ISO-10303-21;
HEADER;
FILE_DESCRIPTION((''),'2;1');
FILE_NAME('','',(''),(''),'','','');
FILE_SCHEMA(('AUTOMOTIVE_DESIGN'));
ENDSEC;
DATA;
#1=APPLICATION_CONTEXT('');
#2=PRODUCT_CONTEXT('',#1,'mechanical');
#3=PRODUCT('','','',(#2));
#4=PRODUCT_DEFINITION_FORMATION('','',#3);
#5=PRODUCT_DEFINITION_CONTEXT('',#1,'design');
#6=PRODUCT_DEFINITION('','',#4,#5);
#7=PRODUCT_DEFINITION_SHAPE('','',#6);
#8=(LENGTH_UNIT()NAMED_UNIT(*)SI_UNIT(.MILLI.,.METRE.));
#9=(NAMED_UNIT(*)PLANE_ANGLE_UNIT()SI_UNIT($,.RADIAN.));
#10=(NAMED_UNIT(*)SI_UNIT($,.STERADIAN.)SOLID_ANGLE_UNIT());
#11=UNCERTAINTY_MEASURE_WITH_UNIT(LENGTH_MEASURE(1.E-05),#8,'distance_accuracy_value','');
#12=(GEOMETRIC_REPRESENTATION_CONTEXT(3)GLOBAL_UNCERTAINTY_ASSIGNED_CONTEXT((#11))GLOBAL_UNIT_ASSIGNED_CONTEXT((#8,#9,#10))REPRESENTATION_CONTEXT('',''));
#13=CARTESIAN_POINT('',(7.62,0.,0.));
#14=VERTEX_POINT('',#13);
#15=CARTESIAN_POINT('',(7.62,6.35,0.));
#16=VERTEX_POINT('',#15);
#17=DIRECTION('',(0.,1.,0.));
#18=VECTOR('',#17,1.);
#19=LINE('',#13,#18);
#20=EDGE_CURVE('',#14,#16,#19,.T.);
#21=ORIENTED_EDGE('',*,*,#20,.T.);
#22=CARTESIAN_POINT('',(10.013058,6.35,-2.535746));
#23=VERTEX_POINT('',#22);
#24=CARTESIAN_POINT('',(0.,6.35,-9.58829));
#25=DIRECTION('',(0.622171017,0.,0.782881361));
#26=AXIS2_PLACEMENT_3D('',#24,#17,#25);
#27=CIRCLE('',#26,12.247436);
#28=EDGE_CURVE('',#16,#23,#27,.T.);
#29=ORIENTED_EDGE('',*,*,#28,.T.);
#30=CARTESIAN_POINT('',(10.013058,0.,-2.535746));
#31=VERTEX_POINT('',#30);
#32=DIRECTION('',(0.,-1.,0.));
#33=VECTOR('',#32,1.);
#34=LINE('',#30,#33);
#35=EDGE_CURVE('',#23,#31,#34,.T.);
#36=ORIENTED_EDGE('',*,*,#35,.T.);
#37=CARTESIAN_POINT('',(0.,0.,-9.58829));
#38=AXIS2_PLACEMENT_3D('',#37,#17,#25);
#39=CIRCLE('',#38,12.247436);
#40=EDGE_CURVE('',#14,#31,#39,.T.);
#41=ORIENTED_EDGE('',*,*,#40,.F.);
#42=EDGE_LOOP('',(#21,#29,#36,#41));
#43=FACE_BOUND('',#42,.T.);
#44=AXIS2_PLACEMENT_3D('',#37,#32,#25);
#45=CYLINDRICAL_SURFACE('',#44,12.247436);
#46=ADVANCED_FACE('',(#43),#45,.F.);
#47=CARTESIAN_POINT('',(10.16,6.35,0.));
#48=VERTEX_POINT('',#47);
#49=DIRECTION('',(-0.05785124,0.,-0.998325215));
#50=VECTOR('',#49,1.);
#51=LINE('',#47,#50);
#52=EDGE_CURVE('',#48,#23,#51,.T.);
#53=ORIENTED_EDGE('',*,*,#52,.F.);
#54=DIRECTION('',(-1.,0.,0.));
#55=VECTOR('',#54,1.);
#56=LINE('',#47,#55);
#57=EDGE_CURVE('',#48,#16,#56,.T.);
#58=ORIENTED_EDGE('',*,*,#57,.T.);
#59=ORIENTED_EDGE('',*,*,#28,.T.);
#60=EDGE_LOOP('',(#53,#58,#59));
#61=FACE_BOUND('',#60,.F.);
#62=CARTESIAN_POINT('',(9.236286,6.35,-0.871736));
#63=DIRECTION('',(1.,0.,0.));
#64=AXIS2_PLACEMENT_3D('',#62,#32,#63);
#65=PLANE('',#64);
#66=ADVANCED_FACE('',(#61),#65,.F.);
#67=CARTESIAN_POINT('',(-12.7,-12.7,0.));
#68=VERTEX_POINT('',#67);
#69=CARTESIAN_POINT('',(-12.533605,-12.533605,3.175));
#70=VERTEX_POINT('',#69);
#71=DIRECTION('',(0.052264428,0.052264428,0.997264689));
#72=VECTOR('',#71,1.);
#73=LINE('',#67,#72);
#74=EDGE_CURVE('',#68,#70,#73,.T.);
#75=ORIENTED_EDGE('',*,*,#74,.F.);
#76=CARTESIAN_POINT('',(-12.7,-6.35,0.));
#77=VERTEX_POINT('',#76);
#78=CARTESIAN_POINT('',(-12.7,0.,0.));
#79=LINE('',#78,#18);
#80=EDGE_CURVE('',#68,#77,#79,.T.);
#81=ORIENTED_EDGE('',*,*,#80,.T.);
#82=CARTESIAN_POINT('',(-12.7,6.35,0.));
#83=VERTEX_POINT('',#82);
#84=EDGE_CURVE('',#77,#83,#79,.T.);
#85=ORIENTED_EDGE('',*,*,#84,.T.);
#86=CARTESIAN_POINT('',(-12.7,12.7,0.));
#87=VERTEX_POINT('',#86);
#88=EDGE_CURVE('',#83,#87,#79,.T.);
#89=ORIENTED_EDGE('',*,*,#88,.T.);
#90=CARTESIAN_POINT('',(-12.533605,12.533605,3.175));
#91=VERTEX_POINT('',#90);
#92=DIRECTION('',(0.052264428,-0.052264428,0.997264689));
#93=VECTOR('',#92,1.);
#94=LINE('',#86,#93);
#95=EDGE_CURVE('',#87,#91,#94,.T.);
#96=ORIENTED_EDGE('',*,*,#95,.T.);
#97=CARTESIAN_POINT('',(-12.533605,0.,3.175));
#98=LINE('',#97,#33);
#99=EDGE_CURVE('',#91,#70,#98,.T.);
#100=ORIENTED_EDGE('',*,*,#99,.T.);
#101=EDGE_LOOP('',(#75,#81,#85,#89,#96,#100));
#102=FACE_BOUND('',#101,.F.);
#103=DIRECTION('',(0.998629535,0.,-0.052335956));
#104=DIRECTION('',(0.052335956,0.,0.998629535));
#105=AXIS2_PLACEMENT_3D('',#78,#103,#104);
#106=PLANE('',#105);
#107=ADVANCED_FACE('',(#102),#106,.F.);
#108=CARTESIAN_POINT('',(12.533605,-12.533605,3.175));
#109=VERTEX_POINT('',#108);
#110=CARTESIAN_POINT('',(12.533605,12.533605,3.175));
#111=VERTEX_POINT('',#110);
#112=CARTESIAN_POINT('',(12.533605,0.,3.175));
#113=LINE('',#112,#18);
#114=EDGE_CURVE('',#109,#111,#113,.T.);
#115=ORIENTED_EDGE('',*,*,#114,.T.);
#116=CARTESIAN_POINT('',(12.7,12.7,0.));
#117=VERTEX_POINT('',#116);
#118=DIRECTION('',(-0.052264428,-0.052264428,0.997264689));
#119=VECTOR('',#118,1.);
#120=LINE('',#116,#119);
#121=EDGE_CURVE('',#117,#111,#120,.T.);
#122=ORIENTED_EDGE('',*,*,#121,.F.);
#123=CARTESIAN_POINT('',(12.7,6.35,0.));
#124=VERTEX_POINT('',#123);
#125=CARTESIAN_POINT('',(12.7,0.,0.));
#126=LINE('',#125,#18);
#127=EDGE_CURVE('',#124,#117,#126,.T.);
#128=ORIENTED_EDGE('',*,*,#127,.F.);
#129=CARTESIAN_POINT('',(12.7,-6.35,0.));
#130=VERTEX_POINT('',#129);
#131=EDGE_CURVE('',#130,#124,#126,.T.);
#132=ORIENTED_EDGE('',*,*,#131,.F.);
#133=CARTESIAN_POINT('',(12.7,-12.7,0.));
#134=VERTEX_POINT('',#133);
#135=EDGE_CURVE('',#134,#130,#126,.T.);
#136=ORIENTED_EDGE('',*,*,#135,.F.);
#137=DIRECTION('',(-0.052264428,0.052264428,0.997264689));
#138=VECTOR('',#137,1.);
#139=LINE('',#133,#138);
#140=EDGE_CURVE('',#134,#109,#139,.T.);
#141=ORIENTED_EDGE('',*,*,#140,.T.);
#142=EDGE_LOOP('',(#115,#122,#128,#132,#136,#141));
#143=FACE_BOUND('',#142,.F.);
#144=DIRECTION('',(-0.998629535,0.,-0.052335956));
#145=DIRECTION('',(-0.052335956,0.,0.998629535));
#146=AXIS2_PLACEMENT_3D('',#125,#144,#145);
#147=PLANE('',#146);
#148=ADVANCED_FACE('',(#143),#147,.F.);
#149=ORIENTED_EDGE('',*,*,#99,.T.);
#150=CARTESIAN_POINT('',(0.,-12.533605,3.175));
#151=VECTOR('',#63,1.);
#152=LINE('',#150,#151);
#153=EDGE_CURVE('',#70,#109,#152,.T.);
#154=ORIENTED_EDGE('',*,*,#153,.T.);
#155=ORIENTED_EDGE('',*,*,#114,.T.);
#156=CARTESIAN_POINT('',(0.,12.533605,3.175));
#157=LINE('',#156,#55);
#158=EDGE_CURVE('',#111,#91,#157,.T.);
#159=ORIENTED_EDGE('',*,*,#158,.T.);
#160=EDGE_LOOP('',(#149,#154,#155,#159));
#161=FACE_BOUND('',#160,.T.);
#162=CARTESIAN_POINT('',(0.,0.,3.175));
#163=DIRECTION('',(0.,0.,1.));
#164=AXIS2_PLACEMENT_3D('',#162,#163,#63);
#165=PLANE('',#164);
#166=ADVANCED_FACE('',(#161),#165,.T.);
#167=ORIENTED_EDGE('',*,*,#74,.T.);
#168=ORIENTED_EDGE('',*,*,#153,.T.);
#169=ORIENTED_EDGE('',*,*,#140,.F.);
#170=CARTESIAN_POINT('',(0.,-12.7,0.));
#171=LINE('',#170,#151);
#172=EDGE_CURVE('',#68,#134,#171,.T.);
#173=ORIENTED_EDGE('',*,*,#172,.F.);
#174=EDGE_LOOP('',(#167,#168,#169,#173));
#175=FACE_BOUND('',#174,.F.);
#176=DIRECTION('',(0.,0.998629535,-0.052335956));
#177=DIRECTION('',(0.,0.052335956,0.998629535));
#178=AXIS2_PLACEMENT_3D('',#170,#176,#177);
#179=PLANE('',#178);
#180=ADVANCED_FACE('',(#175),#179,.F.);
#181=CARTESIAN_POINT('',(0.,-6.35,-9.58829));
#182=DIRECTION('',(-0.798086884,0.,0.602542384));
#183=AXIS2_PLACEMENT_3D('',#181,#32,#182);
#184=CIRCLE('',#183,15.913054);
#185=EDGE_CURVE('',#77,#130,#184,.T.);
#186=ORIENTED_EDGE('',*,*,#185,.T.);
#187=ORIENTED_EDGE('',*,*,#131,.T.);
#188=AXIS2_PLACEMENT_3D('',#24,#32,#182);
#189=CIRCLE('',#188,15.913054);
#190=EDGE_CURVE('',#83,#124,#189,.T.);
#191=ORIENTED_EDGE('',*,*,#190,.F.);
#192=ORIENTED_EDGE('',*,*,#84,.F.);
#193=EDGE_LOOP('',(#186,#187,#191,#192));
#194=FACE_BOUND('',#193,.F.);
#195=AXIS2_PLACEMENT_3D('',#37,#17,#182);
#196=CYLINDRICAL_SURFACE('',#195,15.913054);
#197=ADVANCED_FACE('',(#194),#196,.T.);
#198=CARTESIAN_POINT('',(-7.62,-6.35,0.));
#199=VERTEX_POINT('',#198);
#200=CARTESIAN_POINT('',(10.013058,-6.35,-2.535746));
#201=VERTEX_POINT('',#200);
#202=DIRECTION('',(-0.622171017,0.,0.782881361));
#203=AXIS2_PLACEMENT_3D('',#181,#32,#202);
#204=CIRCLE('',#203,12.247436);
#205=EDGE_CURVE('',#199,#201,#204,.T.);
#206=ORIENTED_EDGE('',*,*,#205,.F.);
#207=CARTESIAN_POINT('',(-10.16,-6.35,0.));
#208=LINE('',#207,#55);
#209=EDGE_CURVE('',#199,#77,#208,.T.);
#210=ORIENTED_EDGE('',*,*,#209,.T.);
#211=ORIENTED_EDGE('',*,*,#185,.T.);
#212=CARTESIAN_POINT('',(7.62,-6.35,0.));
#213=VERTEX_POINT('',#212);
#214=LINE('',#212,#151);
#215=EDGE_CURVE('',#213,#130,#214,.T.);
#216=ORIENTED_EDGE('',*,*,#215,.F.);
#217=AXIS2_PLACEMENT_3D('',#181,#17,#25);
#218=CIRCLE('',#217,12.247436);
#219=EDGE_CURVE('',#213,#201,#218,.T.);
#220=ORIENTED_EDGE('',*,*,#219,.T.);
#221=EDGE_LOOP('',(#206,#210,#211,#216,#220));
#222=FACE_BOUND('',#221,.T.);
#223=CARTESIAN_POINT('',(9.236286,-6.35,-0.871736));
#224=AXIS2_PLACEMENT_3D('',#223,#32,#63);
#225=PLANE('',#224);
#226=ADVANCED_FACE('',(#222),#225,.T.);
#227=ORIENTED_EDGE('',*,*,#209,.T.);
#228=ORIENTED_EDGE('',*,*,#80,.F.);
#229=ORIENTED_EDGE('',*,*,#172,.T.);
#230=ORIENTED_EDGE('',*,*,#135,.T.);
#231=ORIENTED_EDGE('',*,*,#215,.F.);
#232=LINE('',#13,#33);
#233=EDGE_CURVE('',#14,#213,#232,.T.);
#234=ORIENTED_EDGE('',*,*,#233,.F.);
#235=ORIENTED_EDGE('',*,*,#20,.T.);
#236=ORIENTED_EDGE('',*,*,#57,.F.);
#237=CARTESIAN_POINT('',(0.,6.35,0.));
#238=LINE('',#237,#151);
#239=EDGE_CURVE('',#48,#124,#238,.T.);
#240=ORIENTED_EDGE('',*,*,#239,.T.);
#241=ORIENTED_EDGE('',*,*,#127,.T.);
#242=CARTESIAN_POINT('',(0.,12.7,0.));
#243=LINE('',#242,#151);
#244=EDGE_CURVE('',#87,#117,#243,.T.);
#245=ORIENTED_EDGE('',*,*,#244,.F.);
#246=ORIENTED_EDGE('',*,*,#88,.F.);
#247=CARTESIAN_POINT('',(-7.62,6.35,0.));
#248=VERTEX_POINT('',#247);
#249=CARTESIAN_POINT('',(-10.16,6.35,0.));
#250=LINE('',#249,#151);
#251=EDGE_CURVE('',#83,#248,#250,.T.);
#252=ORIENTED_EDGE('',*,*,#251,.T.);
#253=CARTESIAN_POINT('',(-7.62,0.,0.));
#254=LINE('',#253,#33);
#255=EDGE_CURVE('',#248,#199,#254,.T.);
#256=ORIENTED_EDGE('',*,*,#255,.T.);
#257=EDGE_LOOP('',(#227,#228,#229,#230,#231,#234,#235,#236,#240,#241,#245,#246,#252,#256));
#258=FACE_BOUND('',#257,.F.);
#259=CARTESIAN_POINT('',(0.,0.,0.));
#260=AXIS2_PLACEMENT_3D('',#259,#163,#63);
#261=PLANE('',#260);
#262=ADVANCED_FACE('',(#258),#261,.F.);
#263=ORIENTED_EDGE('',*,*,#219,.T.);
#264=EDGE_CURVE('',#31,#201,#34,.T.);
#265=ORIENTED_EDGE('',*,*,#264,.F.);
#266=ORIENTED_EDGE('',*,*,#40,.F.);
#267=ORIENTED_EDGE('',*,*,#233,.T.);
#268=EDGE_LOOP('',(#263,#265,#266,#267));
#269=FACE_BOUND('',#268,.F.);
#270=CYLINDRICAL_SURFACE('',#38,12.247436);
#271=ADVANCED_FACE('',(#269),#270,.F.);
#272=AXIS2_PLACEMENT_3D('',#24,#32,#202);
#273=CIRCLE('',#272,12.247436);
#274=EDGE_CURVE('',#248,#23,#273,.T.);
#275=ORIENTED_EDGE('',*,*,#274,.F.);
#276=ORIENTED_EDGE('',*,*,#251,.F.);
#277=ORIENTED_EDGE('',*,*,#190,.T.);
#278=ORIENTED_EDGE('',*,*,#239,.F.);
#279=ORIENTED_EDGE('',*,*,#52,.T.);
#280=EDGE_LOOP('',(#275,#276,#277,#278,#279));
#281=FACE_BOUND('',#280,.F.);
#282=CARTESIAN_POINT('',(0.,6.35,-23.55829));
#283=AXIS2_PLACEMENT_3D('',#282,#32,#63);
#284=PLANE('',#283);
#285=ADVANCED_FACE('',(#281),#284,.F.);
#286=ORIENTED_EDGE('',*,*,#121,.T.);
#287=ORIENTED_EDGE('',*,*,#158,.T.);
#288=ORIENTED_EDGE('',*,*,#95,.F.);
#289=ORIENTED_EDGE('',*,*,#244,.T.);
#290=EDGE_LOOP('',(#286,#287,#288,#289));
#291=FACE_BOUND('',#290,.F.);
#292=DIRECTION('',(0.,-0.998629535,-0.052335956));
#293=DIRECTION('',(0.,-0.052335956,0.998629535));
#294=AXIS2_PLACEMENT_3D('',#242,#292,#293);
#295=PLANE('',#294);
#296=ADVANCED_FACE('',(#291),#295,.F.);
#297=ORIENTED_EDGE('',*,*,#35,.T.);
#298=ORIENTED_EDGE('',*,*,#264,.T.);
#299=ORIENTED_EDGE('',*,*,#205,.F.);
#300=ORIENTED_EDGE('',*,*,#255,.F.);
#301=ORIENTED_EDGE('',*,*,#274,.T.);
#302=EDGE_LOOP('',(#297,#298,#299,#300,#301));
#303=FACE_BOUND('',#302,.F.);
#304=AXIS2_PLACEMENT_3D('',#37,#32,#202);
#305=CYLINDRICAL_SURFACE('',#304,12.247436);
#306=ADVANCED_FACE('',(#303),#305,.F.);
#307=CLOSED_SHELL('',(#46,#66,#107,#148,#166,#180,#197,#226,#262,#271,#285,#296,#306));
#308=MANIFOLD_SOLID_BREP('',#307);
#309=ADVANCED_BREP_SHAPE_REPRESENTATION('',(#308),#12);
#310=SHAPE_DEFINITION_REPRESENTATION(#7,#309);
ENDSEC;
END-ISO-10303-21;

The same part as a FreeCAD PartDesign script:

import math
import FreeCAD as App
import Part
import Sketcher
from FreeCAD import Vector
Q = App.Units.Quantity


def add_polygon(sketch, points):
    """Adds a closed chain of lines whose ends are joined by coincident constraints."""
    first, n = sketch.GeometryCount, len(points)
    for a, b in zip(points, points[1:] + points[:1]):
        sketch.addGeometry(Part.LineSegment(App.Vector(*a, 0), App.Vector(*b, 0)), False)
    for i in range(n):
        sketch.addConstraint(Sketcher.Constraint("Coincident", first + i, 2, first + (i + 1) % n, 1))

doc = App.newDocument("Part")
body = doc.addObject("PartDesign::Body", "Body")

sketch1 = body.newObject("Sketcher::SketchObject", "Sketch")
sketch1.AttachmentSupport = (doc.getObject("XY_Plane"), [""])
sketch1.MapMode = "FlatFace"
add_polygon(sketch1, [(-13, 13), (-13, -13), (13, -13), (13, 13)])
sketch1.addConstraint([
    Sketcher.Constraint("Vertical", 0),
    Sketcher.Constraint("Horizontal", 1),
    Sketcher.Constraint("Vertical", 2),
    Sketcher.Constraint("Horizontal", 3),
    Sketcher.Constraint("Symmetric", 0, 2, 2, 2, -1, 1),
    Sketcher.Constraint("Equal", 3, 0),
    Sketcher.Constraint("DistanceX", 1, 1, 1, 2, Q("1 in")),
])
pad1 = body.newObject("PartDesign::Pad", "Pad")
pad1.Profile = sketch1
pad1.Length = Q("0.125 in")
pad1.TaperAngle = -3

sketch2 = body.newObject("Sketcher::SketchObject", "Sketch001")
sketch2.AttachmentSupport = (doc.getObject("XY_Plane"), [""])
sketch2.MapMode = "FlatFace"
add_polygon(sketch2, [(-13, -6), (-13, 6), (-8, 6), (-8, -6)])
sketch2.addConstraint([
    Sketcher.Constraint("Vertical", 0),
    Sketcher.Constraint("Horizontal", 1),
    Sketcher.Constraint("Vertical", 2),
    Sketcher.Constraint("Horizontal", 3),
    Sketcher.Constraint("DistanceX", 1, 1, 1, 2, Q("0.2 in")),
    Sketcher.Constraint("DistanceY", 0, 1, 0, 2, Q("0.5 in")),
    Sketcher.Constraint("DistanceX", 0, 2, -1, 1, Q("0.5 in")),
    Sketcher.Constraint("DistanceY", -1, 1, 0, 2, Q("0.25 in")),
])

sketch3 = body.newObject("Sketcher::SketchObject", "Sketch002")
sketch3.AttachmentSupport = (doc.getObject("XZ_Plane"), [""])
sketch3.MapMode = "FlatFace"
sketch3.addGeometry(Part.ArcOfCircle(Part.Circle(Vector(0, -10, 0), Vector(0, 0, 1), 14), math.radians(137), math.radians(403)), False)
sketch3.addConstraint([
    Sketcher.Constraint("Symmetric", 0, 1, 0, 2, -1, 1),
    Sketcher.Constraint("PointOnObject", 0, 3, -2),
    Sketcher.Constraint("Radius", 0, Q("0.55 in")),
    Sketcher.Constraint("DistanceX", 0, 1, -1, 1, Q("0.4 in")),
])
doc.recompute()

additivepipe = body.newObject("PartDesign::AdditivePipe", "AdditivePipe")
additivepipe.Profile = sketch2
additivepipe.Spine = (sketch3, ["Edge1"])

sketch4 = body.newObject("Sketcher::SketchObject", "Sketch003")
sketch4.AttachmentSupport = (doc.getObject("XZ_Plane"), [""])
sketch4.MapMode = "FlatFace"
sketch4.addGeometry([
    Part.LineSegment(Vector(10, -2.5, 0), Vector(10.2, 0, 0)),
    Part.LineSegment(Vector(10.2, 0, 0), Vector(7.6, 0, 0)),
    Part.ArcOfCircle(Part.Circle(Vector(0, -9.6, 0), Vector(0, 0, 1), 12.2), math.radians(35.16), math.radians(51.53)),
], False)
sketch4.addConstraint([
    Sketcher.Constraint("Coincident", 0, 2, 1, 1),
    Sketcher.Constraint("Coincident", 1, 2, 2, 2),
    Sketcher.Constraint("Coincident", 2, 1, 0, 1),
    Sketcher.Constraint("Horizontal", 1),
    Sketcher.Constraint("PointOnObject", 2, 3, -2),
    Sketcher.Constraint("PointOnObject", 0, 2, -1),
    Sketcher.Constraint("DistanceX", 1, 2, 1, 1, Q("0.1 in")),
    Sketcher.Constraint("Distance", 0, Q("0.1 in")),
    Sketcher.Constraint("DistanceX", -1, 1, 0, 2, Q("0.4 in")),
    Sketcher.Constraint("Radius", 2, Q("12.247436 mm")),
])
pad2 = body.newObject("PartDesign::Pad", "Pad001")
pad2.Profile = sketch4
pad2.Type = "TwoLengths"
pad2.Length = Q("0.25 in")
pad2.Length2 = Q("0.25 in")

doc.recompute()
